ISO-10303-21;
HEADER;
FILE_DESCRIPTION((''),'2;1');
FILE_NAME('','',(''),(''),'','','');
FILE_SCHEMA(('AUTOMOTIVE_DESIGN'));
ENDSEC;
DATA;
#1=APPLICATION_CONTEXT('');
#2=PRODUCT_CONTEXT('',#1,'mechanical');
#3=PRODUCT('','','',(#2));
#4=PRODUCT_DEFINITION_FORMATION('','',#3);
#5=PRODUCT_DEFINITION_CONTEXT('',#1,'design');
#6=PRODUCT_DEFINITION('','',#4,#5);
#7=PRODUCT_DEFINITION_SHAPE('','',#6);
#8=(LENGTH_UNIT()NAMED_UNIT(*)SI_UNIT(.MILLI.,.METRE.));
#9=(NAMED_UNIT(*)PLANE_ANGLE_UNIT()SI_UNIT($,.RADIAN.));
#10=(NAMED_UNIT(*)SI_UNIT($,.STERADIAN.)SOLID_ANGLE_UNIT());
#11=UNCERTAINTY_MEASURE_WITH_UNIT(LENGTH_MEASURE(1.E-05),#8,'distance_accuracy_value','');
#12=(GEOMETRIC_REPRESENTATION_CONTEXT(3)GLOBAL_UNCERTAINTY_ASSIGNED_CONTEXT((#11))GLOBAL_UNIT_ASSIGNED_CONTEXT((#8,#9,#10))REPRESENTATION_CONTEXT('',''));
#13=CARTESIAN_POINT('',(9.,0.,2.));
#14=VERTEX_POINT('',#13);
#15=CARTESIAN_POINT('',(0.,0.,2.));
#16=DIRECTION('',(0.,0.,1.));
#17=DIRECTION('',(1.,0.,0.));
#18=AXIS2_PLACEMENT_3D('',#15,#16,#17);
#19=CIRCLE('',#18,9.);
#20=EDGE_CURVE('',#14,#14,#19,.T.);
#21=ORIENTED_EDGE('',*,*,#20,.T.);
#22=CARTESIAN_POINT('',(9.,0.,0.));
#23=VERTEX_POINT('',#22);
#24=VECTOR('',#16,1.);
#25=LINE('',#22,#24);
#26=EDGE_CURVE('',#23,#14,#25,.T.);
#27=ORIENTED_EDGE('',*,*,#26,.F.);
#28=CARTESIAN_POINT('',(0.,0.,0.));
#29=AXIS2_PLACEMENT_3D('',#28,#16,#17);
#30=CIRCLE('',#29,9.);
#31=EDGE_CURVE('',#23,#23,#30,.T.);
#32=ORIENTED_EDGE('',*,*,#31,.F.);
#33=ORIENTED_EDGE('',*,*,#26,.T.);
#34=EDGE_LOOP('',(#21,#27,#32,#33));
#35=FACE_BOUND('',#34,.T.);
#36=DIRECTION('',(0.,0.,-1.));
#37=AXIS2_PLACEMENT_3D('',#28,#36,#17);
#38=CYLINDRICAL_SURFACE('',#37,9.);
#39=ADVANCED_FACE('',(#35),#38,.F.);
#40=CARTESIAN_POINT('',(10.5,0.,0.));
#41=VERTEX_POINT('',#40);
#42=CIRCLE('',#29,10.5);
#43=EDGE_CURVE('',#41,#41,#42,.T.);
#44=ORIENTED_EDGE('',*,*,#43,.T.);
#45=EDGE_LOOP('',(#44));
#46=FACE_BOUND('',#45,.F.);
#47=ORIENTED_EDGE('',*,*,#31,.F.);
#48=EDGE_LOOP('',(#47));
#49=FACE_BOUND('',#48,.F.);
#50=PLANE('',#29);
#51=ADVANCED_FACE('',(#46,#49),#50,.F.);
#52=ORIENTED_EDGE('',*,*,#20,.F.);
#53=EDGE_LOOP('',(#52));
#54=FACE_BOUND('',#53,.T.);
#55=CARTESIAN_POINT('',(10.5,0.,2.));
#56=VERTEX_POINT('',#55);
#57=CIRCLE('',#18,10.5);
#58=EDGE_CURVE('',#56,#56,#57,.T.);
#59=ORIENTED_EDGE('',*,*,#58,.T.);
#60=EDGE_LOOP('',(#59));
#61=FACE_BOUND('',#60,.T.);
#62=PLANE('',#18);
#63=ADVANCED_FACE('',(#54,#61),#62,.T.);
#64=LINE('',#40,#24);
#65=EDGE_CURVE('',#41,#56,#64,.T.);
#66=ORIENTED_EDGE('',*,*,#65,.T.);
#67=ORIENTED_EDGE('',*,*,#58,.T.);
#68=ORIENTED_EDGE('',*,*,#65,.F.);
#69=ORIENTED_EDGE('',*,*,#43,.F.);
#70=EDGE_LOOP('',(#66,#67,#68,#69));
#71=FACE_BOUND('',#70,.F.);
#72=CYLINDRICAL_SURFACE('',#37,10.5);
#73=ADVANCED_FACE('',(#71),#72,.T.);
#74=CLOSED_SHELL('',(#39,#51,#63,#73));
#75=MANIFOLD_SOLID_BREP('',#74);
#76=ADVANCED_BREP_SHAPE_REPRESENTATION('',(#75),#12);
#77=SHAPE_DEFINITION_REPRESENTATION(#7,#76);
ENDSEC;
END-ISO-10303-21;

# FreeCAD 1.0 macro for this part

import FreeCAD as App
import Part
import Sketcher
from FreeCAD import Vector

doc = App.newDocument("Part")
body = doc.addObject("PartDesign::Body", "Body")

sketch1 = body.newObject("Sketcher::SketchObject", "Sketch")
sketch1.AttachmentSupport = (doc.getObject("XY_Plane"), [""])
sketch1.MapMode = "FlatFace"
sketch1.addGeometry(Part.Circle(Vector(0, 0, 0), Vector(0, 0, 1), 10), False)
sketch1.addGeometry(Part.Circle(Vector(0, 0, 0), Vector(0, 0, 1), 9), False)
sketch1.addConstraint(Sketcher.Constraint("Coincident", 0, 3, -1, 1))
sketch1.addConstraint(Sketcher.Constraint("Coincident", 1, 3, -1, 1))
sketch1.addConstraint(Sketcher.Constraint("Diameter", 0, 21.0))
sketch1.addConstraint(Sketcher.Constraint("Diameter", 1, 18.0))
pad1 = body.newObject("PartDesign::Pad", "Pad")
pad1.Profile = sketch1
pad1.Length = 2

doc.recompute()
